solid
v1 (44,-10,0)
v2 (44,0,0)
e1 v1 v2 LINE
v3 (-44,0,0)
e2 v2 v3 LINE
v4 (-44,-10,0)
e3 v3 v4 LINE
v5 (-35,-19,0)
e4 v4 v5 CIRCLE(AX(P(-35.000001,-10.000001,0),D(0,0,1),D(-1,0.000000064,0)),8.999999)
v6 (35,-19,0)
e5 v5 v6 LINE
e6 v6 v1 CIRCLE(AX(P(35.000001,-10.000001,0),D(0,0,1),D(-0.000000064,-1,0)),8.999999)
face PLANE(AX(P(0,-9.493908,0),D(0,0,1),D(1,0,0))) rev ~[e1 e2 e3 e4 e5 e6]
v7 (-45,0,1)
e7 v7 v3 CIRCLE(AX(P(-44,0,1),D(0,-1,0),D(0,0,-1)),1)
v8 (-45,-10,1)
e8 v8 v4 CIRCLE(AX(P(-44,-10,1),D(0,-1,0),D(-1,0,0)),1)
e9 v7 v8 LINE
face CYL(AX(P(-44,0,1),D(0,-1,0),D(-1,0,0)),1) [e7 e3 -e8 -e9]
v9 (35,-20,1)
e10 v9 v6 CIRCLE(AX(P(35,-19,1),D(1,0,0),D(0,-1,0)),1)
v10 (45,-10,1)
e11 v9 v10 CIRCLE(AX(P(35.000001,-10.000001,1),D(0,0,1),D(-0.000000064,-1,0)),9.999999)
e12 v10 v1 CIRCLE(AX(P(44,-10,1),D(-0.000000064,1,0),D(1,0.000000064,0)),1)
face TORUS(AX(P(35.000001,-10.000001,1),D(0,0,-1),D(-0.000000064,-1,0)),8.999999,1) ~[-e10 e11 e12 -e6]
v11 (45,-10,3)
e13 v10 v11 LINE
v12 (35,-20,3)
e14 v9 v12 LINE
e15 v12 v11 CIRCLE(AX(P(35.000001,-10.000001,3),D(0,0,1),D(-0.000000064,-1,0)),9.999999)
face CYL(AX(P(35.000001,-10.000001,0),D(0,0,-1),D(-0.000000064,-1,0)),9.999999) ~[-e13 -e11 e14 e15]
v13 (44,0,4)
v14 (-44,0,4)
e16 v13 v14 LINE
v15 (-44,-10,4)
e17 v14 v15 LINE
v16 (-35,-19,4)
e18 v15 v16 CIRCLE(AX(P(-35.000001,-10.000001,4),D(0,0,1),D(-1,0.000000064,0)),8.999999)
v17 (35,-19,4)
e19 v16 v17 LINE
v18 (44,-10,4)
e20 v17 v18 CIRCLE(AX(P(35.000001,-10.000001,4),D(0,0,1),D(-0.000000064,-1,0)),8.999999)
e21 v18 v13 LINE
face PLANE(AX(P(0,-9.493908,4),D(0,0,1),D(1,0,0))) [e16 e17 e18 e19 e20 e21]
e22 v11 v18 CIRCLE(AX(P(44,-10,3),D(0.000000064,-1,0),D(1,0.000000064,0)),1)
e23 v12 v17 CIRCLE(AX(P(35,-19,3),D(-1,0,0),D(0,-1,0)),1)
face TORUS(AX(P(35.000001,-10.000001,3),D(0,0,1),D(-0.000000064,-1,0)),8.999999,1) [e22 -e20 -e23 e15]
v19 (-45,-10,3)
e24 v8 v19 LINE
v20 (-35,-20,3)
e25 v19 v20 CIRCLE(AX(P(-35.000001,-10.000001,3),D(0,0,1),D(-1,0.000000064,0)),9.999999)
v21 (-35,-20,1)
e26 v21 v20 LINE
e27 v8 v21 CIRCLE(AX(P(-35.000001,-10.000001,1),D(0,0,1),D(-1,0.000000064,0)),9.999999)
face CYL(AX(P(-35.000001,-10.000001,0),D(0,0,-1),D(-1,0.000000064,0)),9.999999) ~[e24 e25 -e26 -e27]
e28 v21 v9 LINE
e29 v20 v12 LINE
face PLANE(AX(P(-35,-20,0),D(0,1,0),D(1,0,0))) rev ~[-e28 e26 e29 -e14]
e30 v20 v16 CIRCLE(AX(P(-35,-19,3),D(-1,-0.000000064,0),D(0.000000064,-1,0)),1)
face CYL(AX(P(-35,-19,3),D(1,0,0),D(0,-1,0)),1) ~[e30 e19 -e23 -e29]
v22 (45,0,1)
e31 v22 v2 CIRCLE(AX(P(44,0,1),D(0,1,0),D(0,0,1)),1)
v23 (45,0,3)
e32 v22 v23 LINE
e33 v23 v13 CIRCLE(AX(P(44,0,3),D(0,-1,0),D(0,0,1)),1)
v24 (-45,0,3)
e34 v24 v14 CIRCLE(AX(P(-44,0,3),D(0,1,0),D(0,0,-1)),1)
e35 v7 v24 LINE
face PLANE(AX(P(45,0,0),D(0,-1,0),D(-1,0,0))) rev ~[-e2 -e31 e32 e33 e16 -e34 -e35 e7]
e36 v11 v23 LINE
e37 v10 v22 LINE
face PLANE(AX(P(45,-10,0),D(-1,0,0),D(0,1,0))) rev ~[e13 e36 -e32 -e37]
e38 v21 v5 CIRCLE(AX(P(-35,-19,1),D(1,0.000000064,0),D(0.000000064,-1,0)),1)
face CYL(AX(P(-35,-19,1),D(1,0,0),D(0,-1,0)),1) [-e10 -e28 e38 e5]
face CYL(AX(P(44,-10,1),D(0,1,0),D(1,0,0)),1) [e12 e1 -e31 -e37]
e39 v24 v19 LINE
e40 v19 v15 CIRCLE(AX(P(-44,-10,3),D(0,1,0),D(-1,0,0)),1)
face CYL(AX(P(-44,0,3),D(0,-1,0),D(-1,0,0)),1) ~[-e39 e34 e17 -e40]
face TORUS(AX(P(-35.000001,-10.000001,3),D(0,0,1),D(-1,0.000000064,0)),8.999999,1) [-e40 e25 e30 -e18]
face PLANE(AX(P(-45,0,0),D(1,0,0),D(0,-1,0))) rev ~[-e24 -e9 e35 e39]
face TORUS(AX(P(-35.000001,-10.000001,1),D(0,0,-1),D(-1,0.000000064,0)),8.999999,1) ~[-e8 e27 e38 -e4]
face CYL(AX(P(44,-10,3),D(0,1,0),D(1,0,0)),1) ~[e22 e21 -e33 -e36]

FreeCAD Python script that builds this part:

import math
import FreeCAD as App
import Part
import Sketcher
Q = App.Units.Quantity


def edges_at(feature, points):
    """Names of the edges that pass closest to the given points."""
    edges = feature.Shape.Edges
    near = lambda p: min(range(len(edges)), key=lambda i: edges[i].distToShape(Part.Vertex(*p))[0])
    return sorted({f"Edge{near(p) + 1}" for p in points})

doc = App.newDocument("Part")
body = doc.addObject("PartDesign::Body", "Body")

# Sketch on XY plane
sketch1 = doc.addObject("Sketcher::SketchObject", "Sketch")
body.addObject(sketch1)
sketch1.AttachmentSupport = (doc.XY_Plane, [""])
sketch1.MapMode = "FlatFace"
sketch1.addGeometry(Part.LineSegment(App.Vector(45, 0, 0), App.Vector(-45, 0, 0)), False)
sketch1.addGeometry(Part.LineSegment(App.Vector(-45, 0, 0), App.Vector(-45, -10, 0)), False)
sketch1.addGeometry(Part.ArcOfCircle(Part.Circle(App.Vector(-35.000001, -10.000001, 0), App.Vector(0, 0, 1), 9.999999), math.radians(179.999996), math.radians(270.000004)), False)
sketch1.addGeometry(Part.LineSegment(App.Vector(-35, -20, 0), App.Vector(35, -20, 0)), False)
sketch1.addGeometry(Part.ArcOfCircle(Part.Circle(App.Vector(35.000001, -10.000001, 0), App.Vector(0, 0, 1), 9.999999), math.radians(-90.000004), math.radians(0.000004)), False)
sketch1.addGeometry(Part.LineSegment(App.Vector(45, -10, 0), App.Vector(45, 0, 0)), False)
sketch1.addConstraint(Sketcher.Constraint("Coincident", 0, 2, 1, 1))
sketch1.addConstraint(Sketcher.Constraint("Tangent", 1, 2, 2, 1))
sketch1.addConstraint(Sketcher.Constraint("Tangent", 2, 2, 3, 1))
sketch1.addConstraint(Sketcher.Constraint("Tangent", 3, 2, 4, 1))
sketch1.addConstraint(Sketcher.Constraint("Tangent", 4, 2, 5, 1))
sketch1.addConstraint(Sketcher.Constraint("Coincident", 5, 2, 0, 1))
sketch1.addConstraint(Sketcher.Constraint("Horizontal", 0))
sketch1.addConstraint(Sketcher.Constraint("Vertical", 1))
sketch1.addConstraint(Sketcher.Constraint("Horizontal", 3))
sketch1.addConstraint(Sketcher.Constraint("Vertical", 5))
sketch1.addConstraint(Sketcher.Constraint("Equal", 2, 4))
sketch1.addConstraint(Sketcher.Constraint("Symmetric", 0, 2, 5, 2, -1, 1))
sketch1.addConstraint(Sketcher.Constraint("Radius", 2, Q("9.999999 mm")))
sketch1.addConstraint(Sketcher.Constraint("DistanceX", 0, 2, 0, 1, Q("90 mm")))
sketch1.addConstraint(Sketcher.Constraint("DistanceY", 1, 2, 1, 1, Q("10 mm")))
pad1 = doc.addObject("PartDesign::Pad", "Pad")
body.addObject(pad1)
pad1.Profile = sketch1
pad1.Length = 4
doc.recompute()

fillet = doc.addObject("PartDesign::Fillet", "Fillet")
body.addObject(fillet)
fillet.Base = (pad1, edges_at(pad1, [(-45, -5, 4), (-42.071, -17.071, 0)]))
fillet.Radius = 1

doc.recompute()
